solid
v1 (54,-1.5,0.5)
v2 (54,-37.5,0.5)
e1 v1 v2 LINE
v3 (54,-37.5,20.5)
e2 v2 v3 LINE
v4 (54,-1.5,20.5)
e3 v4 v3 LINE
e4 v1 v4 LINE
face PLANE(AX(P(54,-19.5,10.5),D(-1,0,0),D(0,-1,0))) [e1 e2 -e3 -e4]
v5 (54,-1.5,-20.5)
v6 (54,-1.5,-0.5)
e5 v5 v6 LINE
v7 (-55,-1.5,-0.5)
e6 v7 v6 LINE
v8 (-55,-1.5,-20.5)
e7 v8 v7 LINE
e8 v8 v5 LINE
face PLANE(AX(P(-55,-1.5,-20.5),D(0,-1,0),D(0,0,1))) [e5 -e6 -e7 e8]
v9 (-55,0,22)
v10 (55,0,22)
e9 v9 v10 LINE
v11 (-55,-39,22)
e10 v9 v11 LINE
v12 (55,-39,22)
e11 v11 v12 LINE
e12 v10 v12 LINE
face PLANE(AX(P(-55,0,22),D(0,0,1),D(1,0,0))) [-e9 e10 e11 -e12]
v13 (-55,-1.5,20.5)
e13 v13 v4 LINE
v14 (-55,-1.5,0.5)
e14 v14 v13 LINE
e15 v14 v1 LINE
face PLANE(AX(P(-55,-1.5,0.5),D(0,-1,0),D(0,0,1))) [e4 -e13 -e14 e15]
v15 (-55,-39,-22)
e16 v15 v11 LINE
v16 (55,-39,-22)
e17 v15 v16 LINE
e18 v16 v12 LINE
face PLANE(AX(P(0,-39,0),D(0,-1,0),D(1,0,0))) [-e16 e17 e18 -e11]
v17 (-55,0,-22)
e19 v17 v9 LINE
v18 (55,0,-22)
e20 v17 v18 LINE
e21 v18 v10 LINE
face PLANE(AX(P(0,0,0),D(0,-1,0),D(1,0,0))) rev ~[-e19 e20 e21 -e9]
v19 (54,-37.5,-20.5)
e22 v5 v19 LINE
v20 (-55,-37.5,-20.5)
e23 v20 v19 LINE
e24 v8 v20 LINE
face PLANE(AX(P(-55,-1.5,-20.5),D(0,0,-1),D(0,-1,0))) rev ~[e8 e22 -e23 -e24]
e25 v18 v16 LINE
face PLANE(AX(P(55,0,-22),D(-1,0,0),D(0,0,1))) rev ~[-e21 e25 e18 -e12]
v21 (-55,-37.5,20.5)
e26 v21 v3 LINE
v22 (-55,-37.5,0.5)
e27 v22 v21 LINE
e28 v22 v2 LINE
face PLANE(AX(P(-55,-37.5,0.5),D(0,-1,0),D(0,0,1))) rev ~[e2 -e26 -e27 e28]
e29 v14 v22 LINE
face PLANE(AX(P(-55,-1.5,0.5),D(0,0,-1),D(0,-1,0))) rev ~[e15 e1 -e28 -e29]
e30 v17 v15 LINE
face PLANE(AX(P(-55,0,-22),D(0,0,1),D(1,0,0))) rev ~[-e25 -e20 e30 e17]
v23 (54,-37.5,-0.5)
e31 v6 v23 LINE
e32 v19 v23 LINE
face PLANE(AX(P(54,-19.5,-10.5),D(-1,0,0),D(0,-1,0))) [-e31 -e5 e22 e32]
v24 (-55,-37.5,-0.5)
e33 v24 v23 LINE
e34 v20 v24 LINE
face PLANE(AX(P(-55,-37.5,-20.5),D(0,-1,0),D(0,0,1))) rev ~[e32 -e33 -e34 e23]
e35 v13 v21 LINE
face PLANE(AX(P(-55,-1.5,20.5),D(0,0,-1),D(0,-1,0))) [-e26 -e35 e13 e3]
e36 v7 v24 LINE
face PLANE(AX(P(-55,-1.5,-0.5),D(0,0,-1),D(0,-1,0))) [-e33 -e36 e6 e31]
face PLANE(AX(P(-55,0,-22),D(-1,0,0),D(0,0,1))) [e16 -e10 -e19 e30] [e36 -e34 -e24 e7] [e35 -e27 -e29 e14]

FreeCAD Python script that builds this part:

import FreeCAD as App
import Part
import Sketcher
Q = App.Units.Quantity

doc = App.newDocument("Part")
body = doc.addObject("PartDesign::Body", "Body")

sketch1 = body.newObject("Sketcher::SketchObject", "Sketch")
sketch1.AttachmentSupport = (doc.getObject("XZ_Plane"), [""])
sketch1.MapMode = "FlatFace"
sketch1.addGeometry(Part.LineSegment(App.Vector(-55, 22, 0), App.Vector(-55, -22, 0)), False)
sketch1.addGeometry(Part.LineSegment(App.Vector(-55, -22, 0), App.Vector(55, -22, 0)), False)
sketch1.addGeometry(Part.LineSegment(App.Vector(55, -22, 0), App.Vector(55, 22, 0)), False)
sketch1.addGeometry(Part.LineSegment(App.Vector(55, 22, 0), App.Vector(-55, 22, 0)), False)
sketch1.addConstraint(Sketcher.Constraint("Coincident", 0, 2, 1, 1))
sketch1.addConstraint(Sketcher.Constraint("Coincident", 1, 2, 2, 1))
sketch1.addConstraint(Sketcher.Constraint("Coincident", 2, 2, 3, 1))
sketch1.addConstraint(Sketcher.Constraint("Coincident", 3, 2, 0, 1))
sketch1.addConstraint(Sketcher.Constraint("Vertical", 0))
sketch1.addConstraint(Sketcher.Constraint("Horizontal", 1))
sketch1.addConstraint(Sketcher.Constraint("Vertical", 2))
sketch1.addConstraint(Sketcher.Constraint("Horizontal", 3))
sketch1.addConstraint(Sketcher.Constraint("Symmetric", 0, 2, 2, 2, -1, 1))
sketch1.addConstraint(Sketcher.Constraint("DistanceX", 1, 1, 1, 2, Q("110 mm")))
sketch1.addConstraint(Sketcher.Constraint("DistanceY", 0, 2, 0, 1, Q("44 mm")))
pad1 = body.newObject("PartDesign::Pad", "Pad")
pad1.Profile = sketch1
pad1.Length = 39

sketch2 = body.newObject("Sketcher::SketchObject", "Sketch001")
sketch2.AttachmentSupport = (doc.getObject("YZ_Plane"), [""])
sketch2.MapMode = "FlatFace"
sketch2.AttachmentOffset = App.Placement(App.Vector(0, 0, -55), App.Rotation())
sketch2.addGeometry(Part.LineSegment(App.Vector(-1.5, 20.5, 0), App.Vector(-1.5, 0.5, 0)), False)
sketch2.addGeometry(Part.LineSegment(App.Vector(-1.5, 0.5, 0), App.Vector(-37.5, 0.5, 0)), False)
sketch2.addGeometry(Part.LineSegment(App.Vector(-37.5, 0.5, 0), App.Vector(-37.5, 20.5, 0)), False)
sketch2.addGeometry(Part.LineSegment(App.Vector(-37.5, 20.5, 0), App.Vector(-1.5, 20.5, 0)), False)
sketch2.addGeometry(Part.LineSegment(App.Vector(-1.5, -0.5, 0), App.Vector(-1.5, -20.5, 0)), False)
sketch2.addGeometry(Part.LineSegment(App.Vector(-1.5, -20.5, 0), App.Vector(-37.5, -20.5, 0)), False)
sketch2.addGeometry(Part.LineSegment(App.Vector(-37.5, -20.5, 0), App.Vector(-37.5, -0.5, 0)), False)
sketch2.addGeometry(Part.LineSegment(App.Vector(-37.5, -0.5, 0), App.Vector(-1.5, -0.5, 0)), False)
sketch2.addConstraint(Sketcher.Constraint("Coincident", 0, 2, 1, 1))
sketch2.addConstraint(Sketcher.Constraint("Coincident", 1, 2, 2, 1))
sketch2.addConstraint(Sketcher.Constraint("Coincident", 2, 2, 3, 1))
sketch2.addConstraint(Sketcher.Constraint("Coincident", 3, 2, 0, 1))
sketch2.addConstraint(Sketcher.Constraint("Coincident", 4, 2, 5, 1))
sketch2.addConstraint(Sketcher.Constraint("Coincident", 5, 2, 6, 1))
sketch2.addConstraint(Sketcher.Constraint("Coincident", 6, 2, 7, 1))
sketch2.addConstraint(Sketcher.Constraint("Coincident", 7, 2, 4, 1))
sketch2.addConstraint(Sketcher.Constraint("Vertical", 0))
sketch2.addConstraint(Sketcher.Constraint("Horizontal", 1))
sketch2.addConstraint(Sketcher.Constraint("Vertical", 2))
sketch2.addConstraint(Sketcher.Constraint("Horizontal", 3))
sketch2.addConstraint(Sketcher.Constraint("Vertical", 4))
sketch2.addConstraint(Sketcher.Constraint("Horizontal", 5))
sketch2.addConstraint(Sketcher.Constraint("Vertical", 6))
sketch2.addConstraint(Sketcher.Constraint("Horizontal", 7))
sketch2.addConstraint(Sketcher.Constraint("Symmetric", 3, 2, 4, 2, -1))
sketch2.addConstraint(Sketcher.Constraint("Symmetric", 1, 2, 6, 2, -1))
sketch2.addConstraint(Sketcher.Constraint("DistanceX", 1, 2, 1, 1, Q("36 mm")))
sketch2.addConstraint(Sketcher.Constraint("DistanceY", 0, 2, 0, 1, Q("20 mm")))
sketch2.addConstraint(Sketcher.Constraint("DistanceY", 4, 2, 0, 2, Q("21 mm")))
sketch2.addConstraint(Sketcher.Constraint("DistanceX", 0, 2, -1, 1, Q("1.5 mm")))
pocket1 = body.newObject("PartDesign::Pocket", "Pocket")
pocket1.Profile = sketch2
pocket1.Length = 109
pocket1.Reversed = True

doc.recompute()
